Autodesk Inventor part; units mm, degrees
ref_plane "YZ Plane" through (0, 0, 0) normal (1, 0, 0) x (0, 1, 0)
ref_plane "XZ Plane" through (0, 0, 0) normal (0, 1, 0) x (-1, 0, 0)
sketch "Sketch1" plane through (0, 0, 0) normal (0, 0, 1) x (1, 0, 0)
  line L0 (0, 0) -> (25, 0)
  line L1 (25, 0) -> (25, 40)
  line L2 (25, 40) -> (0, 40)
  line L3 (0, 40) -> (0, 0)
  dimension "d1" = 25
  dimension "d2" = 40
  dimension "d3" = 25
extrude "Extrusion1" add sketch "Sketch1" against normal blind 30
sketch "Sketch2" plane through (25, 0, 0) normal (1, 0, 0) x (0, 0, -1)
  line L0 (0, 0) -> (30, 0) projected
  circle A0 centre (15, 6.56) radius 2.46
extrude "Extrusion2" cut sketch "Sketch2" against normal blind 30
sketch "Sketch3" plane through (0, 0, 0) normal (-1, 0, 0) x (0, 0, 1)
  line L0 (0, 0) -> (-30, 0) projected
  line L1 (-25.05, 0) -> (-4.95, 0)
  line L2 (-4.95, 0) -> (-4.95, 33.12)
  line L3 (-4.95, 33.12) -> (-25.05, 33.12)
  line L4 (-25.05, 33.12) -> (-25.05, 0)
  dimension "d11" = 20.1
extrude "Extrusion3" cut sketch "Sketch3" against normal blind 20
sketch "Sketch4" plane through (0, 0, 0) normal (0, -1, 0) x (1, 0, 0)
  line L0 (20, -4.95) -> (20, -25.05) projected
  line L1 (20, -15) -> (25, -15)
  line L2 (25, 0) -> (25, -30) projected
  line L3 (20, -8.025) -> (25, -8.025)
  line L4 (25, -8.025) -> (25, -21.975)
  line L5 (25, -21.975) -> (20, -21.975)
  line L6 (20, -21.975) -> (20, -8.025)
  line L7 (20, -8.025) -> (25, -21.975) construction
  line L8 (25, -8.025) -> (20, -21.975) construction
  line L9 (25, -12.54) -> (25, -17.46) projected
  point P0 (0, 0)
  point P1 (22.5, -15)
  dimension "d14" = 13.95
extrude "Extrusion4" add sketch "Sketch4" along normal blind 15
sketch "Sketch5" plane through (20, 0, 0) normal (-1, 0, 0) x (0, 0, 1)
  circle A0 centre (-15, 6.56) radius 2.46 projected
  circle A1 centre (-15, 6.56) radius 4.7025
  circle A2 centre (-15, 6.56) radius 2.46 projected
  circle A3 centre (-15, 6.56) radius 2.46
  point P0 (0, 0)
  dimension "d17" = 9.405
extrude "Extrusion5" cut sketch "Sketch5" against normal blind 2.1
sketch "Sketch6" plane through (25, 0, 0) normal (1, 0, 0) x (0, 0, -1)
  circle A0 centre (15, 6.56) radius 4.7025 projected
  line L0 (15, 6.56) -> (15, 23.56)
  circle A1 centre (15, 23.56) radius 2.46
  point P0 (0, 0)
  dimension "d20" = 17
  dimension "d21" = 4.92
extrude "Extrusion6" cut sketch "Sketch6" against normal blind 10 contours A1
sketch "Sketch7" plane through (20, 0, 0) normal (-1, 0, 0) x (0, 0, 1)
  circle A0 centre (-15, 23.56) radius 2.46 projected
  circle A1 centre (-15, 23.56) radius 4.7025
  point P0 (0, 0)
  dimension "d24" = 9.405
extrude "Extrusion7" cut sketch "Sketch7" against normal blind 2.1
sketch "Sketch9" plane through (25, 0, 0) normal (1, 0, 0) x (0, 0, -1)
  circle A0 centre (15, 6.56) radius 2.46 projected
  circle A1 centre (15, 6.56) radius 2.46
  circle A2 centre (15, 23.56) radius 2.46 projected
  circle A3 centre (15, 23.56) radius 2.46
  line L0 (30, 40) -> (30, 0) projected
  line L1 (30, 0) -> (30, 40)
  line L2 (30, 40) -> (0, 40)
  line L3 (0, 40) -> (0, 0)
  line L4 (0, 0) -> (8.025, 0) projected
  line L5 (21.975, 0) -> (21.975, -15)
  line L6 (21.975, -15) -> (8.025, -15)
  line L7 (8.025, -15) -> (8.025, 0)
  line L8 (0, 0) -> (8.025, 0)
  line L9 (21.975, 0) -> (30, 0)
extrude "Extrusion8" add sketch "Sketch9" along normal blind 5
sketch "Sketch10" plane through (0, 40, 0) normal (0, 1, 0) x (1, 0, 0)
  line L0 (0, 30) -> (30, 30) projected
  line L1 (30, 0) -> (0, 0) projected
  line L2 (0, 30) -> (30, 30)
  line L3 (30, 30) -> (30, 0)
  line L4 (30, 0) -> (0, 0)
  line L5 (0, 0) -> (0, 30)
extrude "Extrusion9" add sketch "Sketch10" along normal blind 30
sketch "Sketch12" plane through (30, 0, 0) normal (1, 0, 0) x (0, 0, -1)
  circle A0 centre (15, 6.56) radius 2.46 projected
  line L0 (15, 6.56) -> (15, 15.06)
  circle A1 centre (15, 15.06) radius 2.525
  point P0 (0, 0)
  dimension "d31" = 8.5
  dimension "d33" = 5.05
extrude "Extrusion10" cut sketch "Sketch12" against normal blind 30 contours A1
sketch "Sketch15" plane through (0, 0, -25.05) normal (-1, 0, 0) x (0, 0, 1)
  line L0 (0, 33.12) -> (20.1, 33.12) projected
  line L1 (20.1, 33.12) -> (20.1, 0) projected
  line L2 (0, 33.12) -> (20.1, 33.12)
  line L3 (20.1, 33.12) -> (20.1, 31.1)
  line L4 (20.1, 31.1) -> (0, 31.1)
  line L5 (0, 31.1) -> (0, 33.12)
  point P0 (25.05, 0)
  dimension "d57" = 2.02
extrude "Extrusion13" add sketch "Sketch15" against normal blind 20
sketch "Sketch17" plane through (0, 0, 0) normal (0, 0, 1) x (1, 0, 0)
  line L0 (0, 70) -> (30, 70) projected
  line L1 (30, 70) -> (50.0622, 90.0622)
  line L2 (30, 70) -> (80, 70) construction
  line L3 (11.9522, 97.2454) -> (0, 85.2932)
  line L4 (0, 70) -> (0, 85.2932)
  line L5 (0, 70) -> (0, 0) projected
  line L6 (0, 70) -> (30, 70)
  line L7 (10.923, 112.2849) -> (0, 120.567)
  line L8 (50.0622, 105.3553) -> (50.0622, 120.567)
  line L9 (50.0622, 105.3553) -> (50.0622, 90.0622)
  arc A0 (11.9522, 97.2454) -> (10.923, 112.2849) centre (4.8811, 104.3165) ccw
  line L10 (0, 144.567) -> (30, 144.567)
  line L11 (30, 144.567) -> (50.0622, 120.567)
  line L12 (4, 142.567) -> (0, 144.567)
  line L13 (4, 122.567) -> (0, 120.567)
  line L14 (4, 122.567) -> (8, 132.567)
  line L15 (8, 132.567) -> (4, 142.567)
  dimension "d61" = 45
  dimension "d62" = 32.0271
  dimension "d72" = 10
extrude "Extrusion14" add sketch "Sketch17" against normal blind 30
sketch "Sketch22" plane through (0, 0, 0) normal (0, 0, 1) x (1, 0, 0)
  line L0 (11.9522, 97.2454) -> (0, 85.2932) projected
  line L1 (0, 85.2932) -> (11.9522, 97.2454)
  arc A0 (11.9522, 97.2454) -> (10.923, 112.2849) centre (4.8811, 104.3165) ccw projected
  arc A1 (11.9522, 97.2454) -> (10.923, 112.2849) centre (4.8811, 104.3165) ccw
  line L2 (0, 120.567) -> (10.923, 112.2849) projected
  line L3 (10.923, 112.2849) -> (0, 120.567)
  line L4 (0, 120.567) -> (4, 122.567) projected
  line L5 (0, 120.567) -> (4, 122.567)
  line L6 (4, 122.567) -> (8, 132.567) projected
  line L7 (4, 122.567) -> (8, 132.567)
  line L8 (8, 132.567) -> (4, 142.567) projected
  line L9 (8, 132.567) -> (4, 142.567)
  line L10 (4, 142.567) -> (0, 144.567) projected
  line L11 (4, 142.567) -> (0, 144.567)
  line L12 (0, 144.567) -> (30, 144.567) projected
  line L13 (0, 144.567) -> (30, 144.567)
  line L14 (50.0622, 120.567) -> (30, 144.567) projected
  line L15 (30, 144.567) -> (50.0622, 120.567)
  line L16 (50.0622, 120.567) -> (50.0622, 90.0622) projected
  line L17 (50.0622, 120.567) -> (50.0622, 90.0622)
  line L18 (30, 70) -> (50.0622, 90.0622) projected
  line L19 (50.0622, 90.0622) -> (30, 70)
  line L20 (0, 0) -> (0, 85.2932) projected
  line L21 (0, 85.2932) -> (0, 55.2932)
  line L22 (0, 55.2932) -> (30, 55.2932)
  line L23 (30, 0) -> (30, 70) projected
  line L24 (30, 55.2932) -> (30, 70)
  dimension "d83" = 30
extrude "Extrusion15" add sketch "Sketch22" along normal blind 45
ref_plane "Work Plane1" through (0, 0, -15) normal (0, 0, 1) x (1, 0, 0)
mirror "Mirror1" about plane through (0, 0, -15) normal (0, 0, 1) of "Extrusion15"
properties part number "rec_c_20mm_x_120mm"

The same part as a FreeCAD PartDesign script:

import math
import FreeCAD as App
import Part
import Sketcher

V = App.Vector
Q = App.Units.Quantity


def add_polygon(sketch, points):
    """Adds a closed chain of lines whose ends are joined by coincident constraints."""
    first, n = sketch.GeometryCount, len(points)
    for a, b in zip(points, points[1:] + points[:1]):
        sketch.addGeometry(Part.LineSegment(App.Vector(*a, 0), App.Vector(*b, 0)), False)
    for i in range(n):
        sketch.addConstraint(Sketcher.Constraint("Coincident", first + i, 2, first + (i + 1) % n, 1))

doc = App.newDocument("Part")
body = doc.addObject("PartDesign::Body", "Body")

# Sketch on XY plane
sketch1 = doc.addObject("Sketcher::SketchObject", "Sketch")
body.addObject(sketch1)
sketch1.AttachmentSupport = (doc.XY_Plane, [""])
sketch1.MapMode = "FlatFace"
add_polygon(sketch1, [(0, 40), (0, 0), (25, 0), (25, 40)])  # lines 0-3
sketch1.addConstraint([
    Sketcher.Constraint("Vertical", 0),
    Sketcher.Constraint("Horizontal", 1),
    Sketcher.Constraint("Vertical", 2),
    Sketcher.Constraint("Horizontal", 3),
    Sketcher.Constraint("Coincident", 0, 2, -1, 1),
    Sketcher.Constraint("DistanceX", 1, 1, 1, 2, Q("25 mm")),
    Sketcher.Constraint("DistanceY", 0, 2, 0, 1, Q("40 mm")),
])
pad1 = doc.addObject("PartDesign::Pad", "Pad")
body.addObject(pad1)
pad1.Profile = sketch1
pad1.Length = 30
pad1.Reversed = True

# Sketch on YZ plane
sketch2 = doc.addObject("Sketcher::SketchObject", "Sketch001")
body.addObject(sketch2)
sketch2.AttachmentSupport = (doc.YZ_Plane, [""])
sketch2.MapMode = "FlatFace"
sketch2.AttachmentOffset = App.Placement(V(0, 0, 25), App.Rotation())
sketch2.addGeometry(Part.Circle(V(6.56, -15, 0), V(0, 0, 1), 2.46), False)
sketch2.addConstraint([
    Sketcher.Constraint("Diameter", 0, Q("4.92 mm")),
    Sketcher.Constraint("DistanceY", 0, 3, -1, 1, Q("15 mm")),
    Sketcher.Constraint("DistanceX", -1, 1, 0, 3, Q("6.56 mm")),
])
pocket1 = doc.addObject("PartDesign::Pocket", "Pocket")
body.addObject(pocket1)
pocket1.Profile = sketch2
pocket1.Length = 30

# Sketch on YZ plane
sketch3 = doc.addObject("Sketcher::SketchObject", "Sketch002")
body.addObject(sketch3)
sketch3.AttachmentSupport = (doc.YZ_Plane, [""])
sketch3.MapMode = "FlatFace"
add_polygon(sketch3, [(0, -25.05), (0, -4.95), (33.12, -4.95), (33.12, -25.05)])  # lines 0-3
sketch3.addConstraint([
    Sketcher.Constraint("Vertical", 0),
    Sketcher.Constraint("Horizontal", 1),
    Sketcher.Constraint("Vertical", 2),
    Sketcher.Constraint("Horizontal", 3),
    Sketcher.Constraint("PointOnObject", 0, 2, -2),
    Sketcher.Constraint("DistanceY", 0, 1, 0, 2, Q("20.1 mm")),
    Sketcher.Constraint("DistanceX", 1, 1, 1, 2, Q("33.12 mm")),
    Sketcher.Constraint("DistanceY", 0, 2, -1, 1, Q("4.95 mm")),
])
pocket2 = doc.addObject("PartDesign::Pocket", "Pocket001")
body.addObject(pocket2)
pocket2.Profile = sketch3
pocket2.Length = 20
pocket2.Reversed = True

# Sketch on XZ plane
sketch4 = doc.addObject("Sketcher::SketchObject", "Sketch003")
body.addObject(sketch4)
sketch4.AttachmentSupport = (doc.XZ_Plane, [""])
sketch4.MapMode = "FlatFace"
add_polygon(sketch4, [(25, -8.025), (20, -8.025), (20, -21.975), (25, -21.975)])  # lines 0-3
sketch4.addConstraint([
    Sketcher.Constraint("Horizontal", 0),
    Sketcher.Constraint("Vertical", 1),
    Sketcher.Constraint("Horizontal", 2),
    Sketcher.Constraint("Vertical", 3),
    Sketcher.Constraint("DistanceY", 1, 2, 1, 1, Q("13.95 mm")),
    Sketcher.Constraint("DistanceX", 0, 2, 0, 1, Q("5 mm")),
    Sketcher.Constraint("DistanceX", -1, 1, 0, 2, Q("20 mm")),
    Sketcher.Constraint("DistanceY", 0, 2, -1, 1, Q("8.025 mm")),
])
pad2 = doc.addObject("PartDesign::Pad", "Pad001")
body.addObject(pad2)
pad2.Profile = sketch4
pad2.Length = 15

# Sketch on YZ plane
sketch5 = doc.addObject("Sketcher::SketchObject", "Sketch004")
body.addObject(sketch5)
sketch5.AttachmentSupport = (doc.YZ_Plane, [""])
sketch5.MapMode = "FlatFace"
sketch5.AttachmentOffset = App.Placement(V(0, 0, 20), App.Rotation())
sketch5.addGeometry([
    Part.Circle(V(6.56, -15, 0), V(0, 0, 1), 4.7025),
    Part.Circle(V(6.56, -15, 0), V(0, 0, 1), 2.46),
], False)
sketch5.addConstraint([
    Sketcher.Constraint("Coincident", 1, 3, 0, 3),
    Sketcher.Constraint("Diameter", 0, Q("9.405 mm")),
    Sketcher.Constraint("Diameter", 1, Q("4.92 mm")),
    Sketcher.Constraint("DistanceY", 0, 3, -1, 1, Q("15 mm")),
    Sketcher.Constraint("DistanceX", -1, 1, 0, 3, Q("6.56 mm")),
])
pocket3 = doc.addObject("PartDesign::Pocket", "Pocket002")
body.addObject(pocket3)
pocket3.Profile = sketch5
pocket3.Length = 2.1
pocket3.Reversed = True

# Sketch on YZ plane
sketch6 = doc.addObject("Sketcher::SketchObject", "Sketch005")
body.addObject(sketch6)
sketch6.AttachmentSupport = (doc.YZ_Plane, [""])
sketch6.MapMode = "FlatFace"
sketch6.AttachmentOffset = App.Placement(V(0, 0, 25), App.Rotation())
sketch6.addGeometry(Part.Circle(V(23.56, -15, 0), V(0, 0, 1), 2.46), False)
sketch6.addConstraint([
    Sketcher.Constraint("Diameter", 0, Q("4.92 mm")),
    Sketcher.Constraint("DistanceY", 0, 3, -1, 1, Q("15 mm")),
    Sketcher.Constraint("DistanceX", -1, 1, 0, 3, Q("23.56 mm")),
])
pocket4 = doc.addObject("PartDesign::Pocket", "Pocket003")
body.addObject(pocket4)
pocket4.Profile = sketch6
pocket4.Length = 10

# Sketch on YZ plane
sketch7 = doc.addObject("Sketcher::SketchObject", "Sketch006")
body.addObject(sketch7)
sketch7.AttachmentSupport = (doc.YZ_Plane, [""])
sketch7.MapMode = "FlatFace"
sketch7.AttachmentOffset = App.Placement(V(0, 0, 20), App.Rotation())
sketch7.addGeometry([
    Part.Circle(V(23.56, -15, 0), V(0, 0, 1), 4.7025),
    Part.Circle(V(23.56, -15, 0), V(0, 0, 1), 2.46),
], False)
sketch7.addConstraint([
    Sketcher.Constraint("Coincident", 1, 3, 0, 3),
    Sketcher.Constraint("Diameter", 0, Q("9.405 mm")),
    Sketcher.Constraint("Diameter", 1, Q("4.92 mm")),
    Sketcher.Constraint("DistanceY", 0, 3, -1, 1, Q("15 mm")),
    Sketcher.Constraint("DistanceX", -1, 1, 0, 3, Q("23.56 mm")),
])
pocket5 = doc.addObject("PartDesign::Pocket", "Pocket004")
body.addObject(pocket5)
pocket5.Profile = sketch7
pocket5.Length = 2.1
pocket5.Reversed = True

# Sketch on YZ plane
sketch8 = doc.addObject("Sketcher::SketchObject", "Sketch007")
body.addObject(sketch8)
sketch8.AttachmentSupport = (doc.YZ_Plane, [""])
sketch8.MapMode = "FlatFace"
sketch8.AttachmentOffset = App.Placement(V(0, 0, 25), App.Rotation())
add_polygon(sketch8, [(0, -30), (40, -30), (40, 0), (0, 0), (0, -8.025), (-15, -8.025), (-15, -21.975), (0, -21.975)])  # lines 0-7
sketch8.addGeometry(Part.Circle(V(6.56, -15, 0), V(0, 0, 1), 2.46), False)  # 8
sketch8.addGeometry(Part.Circle(V(23.56, -15, 0), V(0, 0, 1), 2.46), False)  # 9
sketch8.addConstraint([
    Sketcher.Constraint("Horizontal", 0),
    Sketcher.Constraint("Vertical", 1),
    Sketcher.Constraint("Horizontal", 2),
    Sketcher.Constraint("Vertical", 3),
    Sketcher.Constraint("Horizontal", 4),
    Sketcher.Constraint("Vertical", 5),
    Sketcher.Constraint("Horizontal", 6),
    Sketcher.Constraint("Vertical", 7),
    Sketcher.Constraint("Coincident", 2, 2, -1, 1),
    Sketcher.Constraint("Equal", 8, 9),
    Sketcher.Constraint("PointOnObject", 6, 2, -2),
    Sketcher.Constraint("Horizontal", 8, 3, 9, 3),
    Sketcher.Constraint("Equal", 3, 7),
    Sketcher.Constraint("Diameter", 8, Q("4.92 mm")),
    Sketcher.Constraint("DistanceX", 0, 1, 0, 2, Q("40 mm")),
    Sketcher.Constraint("DistanceX", 4, 2, 4, 1, Q("15 mm")),
    Sketcher.Constraint("DistanceY", 1, 1, 1, 2, Q("30 mm")),
    Sketcher.Constraint("DistanceY", 8, 3, -1, 1, Q("15 mm")),
    Sketcher.Constraint("DistanceX", 8, 3, 9, 3, Q("17 mm")),
    Sketcher.Constraint("DistanceY", 5, 2, 5, 1, Q("13.95 mm")),
    Sketcher.Constraint("DistanceX", -1, 1, 8, 3, Q("6.56 mm")),
])
pad3 = doc.addObject("PartDesign::Pad", "Pad002")
body.addObject(pad3)
pad3.Profile = sketch8
pad3.Length = 5

# Sketch on XZ plane
sketch9 = doc.addObject("Sketcher::SketchObject", "Sketch008")
body.addObject(sketch9)
sketch9.AttachmentSupport = (doc.XZ_Plane, [""])
sketch9.MapMode = "FlatFace"
sketch9.AttachmentOffset = App.Placement(V(0, 0, -40), App.Rotation())
add_polygon(sketch9, [(30, -30), (0, -30), (0, 0), (30, 0)])  # lines 0-3
sketch9.addConstraint([
    Sketcher.Constraint("Horizontal", 0),
    Sketcher.Constraint("Vertical", 1),
    Sketcher.Constraint("Horizontal", 2),
    Sketcher.Constraint("Vertical", 3),
    Sketcher.Constraint("Coincident", 1, 2, -1, 1),
    Sketcher.Constraint("Equal", 2, 1),
    Sketcher.Constraint("DistanceX", 0, 2, 0, 1, Q("30 mm")),
])
pad4 = doc.addObject("PartDesign::Pad", "Pad003")
body.addObject(pad4)
pad4.Profile = sketch9
pad4.Length = 30
pad4.Reversed = True

# Sketch on YZ plane
sketch10 = doc.addObject("Sketcher::SketchObject", "Sketch009")
body.addObject(sketch10)
sketch10.AttachmentSupport = (doc.YZ_Plane, [""])
sketch10.MapMode = "FlatFace"
sketch10.AttachmentOffset = App.Placement(V(0, 0, 30), App.Rotation())
sketch10.addGeometry(Part.Circle(V(15.06, -15, 0), V(0, 0, 1), 2.525), False)
sketch10.addConstraint([
    Sketcher.Constraint("Diameter", 0, Q("5.05 mm")),
    Sketcher.Constraint("DistanceY", 0, 3, -1, 1, Q("15 mm")),
    Sketcher.Constraint("DistanceX", -1, 1, 0, 3, Q("15.06 mm")),
])
pocket6 = doc.addObject("PartDesign::Pocket", "Pocket005")
body.addObject(pocket6)
pocket6.Profile = sketch10
pocket6.Length = 30

# Sketch on YZ plane
sketch11 = doc.addObject("Sketcher::SketchObject", "Sketch010")
body.addObject(sketch11)
sketch11.AttachmentSupport = (doc.YZ_Plane, [""])
sketch11.MapMode = "FlatFace"
add_polygon(sketch11, [(33.12, -4.95), (33.12, -25.05), (31.1, -25.05), (31.1, -4.95)])  # lines 0-3
sketch11.addConstraint([
    Sketcher.Constraint("Vertical", 0),
    Sketcher.Constraint("Horizontal", 1),
    Sketcher.Constraint("Vertical", 2),
    Sketcher.Constraint("Horizontal", 3),
    Sketcher.Constraint("DistanceX", 1, 2, 1, 1, Q("2.02 mm")),
    Sketcher.Constraint("DistanceY", 0, 2, 0, 1, Q("20.1 mm")),
    Sketcher.Constraint("DistanceX", -1, 1, 1, 2, Q("31.1 mm")),
    Sketcher.Constraint("DistanceY", 0, 2, -1, 1, Q("25.05 mm")),
])
pad5 = doc.addObject("PartDesign::Pad", "Pad004")
body.addObject(pad5)
pad5.Profile = sketch11
pad5.Length = 20

# Sketch on XY plane
sketch12 = doc.addObject("Sketcher::SketchObject", "Sketch011")
body.addObject(sketch12)
sketch12.AttachmentSupport = (doc.XY_Plane, [""])
sketch12.MapMode = "FlatFace"
sketch12.addGeometry([
    Part.LineSegment(V(0, 85.2932, 0), V(0, 70, 0)),  # 0
    Part.LineSegment(V(0, 70, 0), V(30, 70, 0)),  # 1
    Part.LineSegment(V(30, 70, 0), V(50.0622, 90.0622, 0)),  # 2
    Part.LineSegment(V(50.0622, 90.0622, 0), V(50.0622, 120.567, 0)),  # 3
    Part.LineSegment(V(50.0622, 120.567, 0), V(30, 144.567, 0)),  # 4
    Part.LineSegment(V(30, 144.567, 0), V(0, 144.567, 0)),  # 5
    Part.LineSegment(V(0, 144.567, 0), V(4, 142.567, 0)),  # 6
    Part.LineSegment(V(4, 142.567, 0), V(8, 132.567, 0)),  # 7
    Part.LineSegment(V(8, 132.567, 0), V(4, 122.567, 0)),  # 8
    Part.LineSegment(V(4, 122.567, 0), V(0, 120.567, 0)),  # 9
    Part.LineSegment(V(0, 120.567, 0), V(10.923, 112.2849, 0)),  # 10
    Part.ArcOfCircle(Part.Circle(V(4.8811, 104.3165, 0), V(0, 0, 1), 10.000046), math.radians(-45), math.radians(52.829413)),  # 11
    Part.LineSegment(V(11.9522, 97.2454, 0), V(0, 85.2932, 0)),  # 12
], False)
sketch12.addConstraint([
    Sketcher.Constraint("Coincident", 0, 2, 1, 1),
    Sketcher.Constraint("Coincident", 1, 2, 2, 1),
    Sketcher.Constraint("Coincident", 2, 2, 3, 1),
    Sketcher.Constraint("Coincident", 3, 2, 4, 1),
    Sketcher.Constraint("Coincident", 4, 2, 5, 1),
    Sketcher.Constraint("Coincident", 5, 2, 6, 1),
    Sketcher.Constraint("Coincident", 6, 2, 7, 1),
    Sketcher.Constraint("Coincident", 7, 2, 8, 1),
    Sketcher.Constraint("Coincident", 8, 2, 9, 1),
    Sketcher.Constraint("Coincident", 9, 2, 10, 1),
    Sketcher.Constraint("Tangent", 10, 2, 11, 2),
    Sketcher.Constraint("Tangent", 11, 1, 12, 1),
    Sketcher.Constraint("Coincident", 12, 2, 0, 1),
    Sketcher.Constraint("Vertical", 0),
    Sketcher.Constraint("Horizontal", 1),
    Sketcher.Constraint("Vertical", 3),
    Sketcher.Constraint("Horizontal", 5),
    Sketcher.Constraint("PointOnObject", 0, 2, -2),
    Sketcher.Constraint("PointOnObject", 5, 2, -2),
    Sketcher.Constraint("PointOnObject", 9, 2, -2),
    Sketcher.Constraint("Parallel", 2, 12),
    Sketcher.Constraint("Horizontal", 3, 2, 9, 2),
    Sketcher.Constraint("Vertical", 1, 2, 4, 2),
    Sketcher.Constraint("Vertical", 6, 2, 8, 2),
    Sketcher.Constraint("Equal", 7, 8),
    Sketcher.Constraint("Equal", 6, 9),
    Sketcher.Constraint("Radius", 11, Q("10 mm")),
    Sketcher.Constraint("Angle", 2, Q("45 deg")),
    Sketcher.Constraint("DistanceY", 7, 2, 6, 2, Q("10 mm")),
    Sketcher.Constraint("DistanceX", 1, 1, 1, 2, Q("30 mm")),
    Sketcher.Constraint("DistanceY", -1, 1, 0, 2, Q("70 mm")),
    Sketcher.Constraint("DistanceX", -1, 1, 6, 2, Q("4 mm")),
    Sketcher.Constraint("DistanceX", -1, 1, 7, 2, Q("8 mm")),
    Sketcher.Constraint("DistanceY", 3, 2, 4, 2, Q("24 mm")),
    Sketcher.Constraint("Angle", 10, Q("-37.1703 deg")),
    Sketcher.Constraint("Distance", 12, Q("16.903 mm")),
    Sketcher.Constraint("DistanceY", 0, 2, 0, 1, Q("15.2932 mm")),
    Sketcher.Constraint("DistanceY", 3, 1, 3, 2, Q("30.5048 mm")),
])
pad6 = doc.addObject("PartDesign::Pad", "Pad005")
body.addObject(pad6)
pad6.Profile = sketch12
pad6.Length = 30
pad6.Reversed = True

# Sketch on XY plane
sketch13 = doc.addObject("Sketcher::SketchObject", "Sketch012")
body.addObject(sketch13)
sketch13.AttachmentSupport = (doc.XY_Plane, [""])
sketch13.MapMode = "FlatFace"
sketch13.addGeometry([
    Part.ArcOfCircle(Part.Circle(V(4.8811, 104.3165, 0), V(0, 0, 1), 10.000046), math.radians(-45), math.radians(52.829413)),  # 0
    Part.LineSegment(V(11.9522, 97.2454, 0), V(0, 85.2932, 0)),  # 1
    Part.LineSegment(V(0, 85.2932, 0), V(0, 55.2932, 0)),  # 2
    Part.LineSegment(V(0, 55.2932, 0), V(30, 55.2932, 0)),  # 3
    Part.LineSegment(V(30, 55.2932, 0), V(30, 70, 0)),  # 4
    Part.LineSegment(V(30, 70, 0), V(50.0622, 90.0622, 0)),  # 5
    Part.LineSegment(V(50.0622, 90.0622, 0), V(50.0622, 120.567, 0)),  # 6
    Part.LineSegment(V(50.0622, 120.567, 0), V(30, 144.567, 0)),  # 7
    Part.LineSegment(V(30, 144.567, 0), V(0, 144.567, 0)),  # 8
    Part.LineSegment(V(0, 144.567, 0), V(4, 142.567, 0)),  # 9
    Part.LineSegment(V(4, 142.567, 0), V(8, 132.567, 0)),  # 10
    Part.LineSegment(V(8, 132.567, 0), V(4, 122.567, 0)),  # 11
    Part.LineSegment(V(4, 122.567, 0), V(0, 120.567, 0)),  # 12
    Part.LineSegment(V(0, 120.567, 0), V(10.923, 112.2849, 0)),  # 13
], False)
sketch13.addConstraint([
    Sketcher.Constraint("Tangent", 0, 1, 1, 1),
    Sketcher.Constraint("Coincident", 1, 2, 2, 1),
    Sketcher.Constraint("Coincident", 2, 2, 3, 1),
    Sketcher.Constraint("Coincident", 3, 2, 4, 1),
    Sketcher.Constraint("Coincident", 4, 2, 5, 1),
    Sketcher.Constraint("Coincident", 5, 2, 6, 1),
    Sketcher.Constraint("Coincident", 6, 2, 7, 1),
    Sketcher.Constraint("Coincident", 7, 2, 8, 1),
    Sketcher.Constraint("Coincident", 8, 2, 9, 1),
    Sketcher.Constraint("Coincident", 9, 2, 10, 1),
    Sketcher.Constraint("Coincident", 10, 2, 11, 1),
    Sketcher.Constraint("Coincident", 11, 2, 12, 1),
    Sketcher.Constraint("Coincident", 12, 2, 13, 1),
    Sketcher.Constraint("Tangent", 13, 2, 0, 2),
    Sketcher.Constraint("Vertical", 2),
    Sketcher.Constraint("Horizontal", 3),
    Sketcher.Constraint("Vertical", 4),
    Sketcher.Constraint("Vertical", 6),
    Sketcher.Constraint("Horizontal", 8),
    Sketcher.Constraint("PointOnObject", 1, 2, -2),
    Sketcher.Constraint("PointOnObject", 8, 2, -2),
    Sketcher.Constraint("PointOnObject", 12, 2, -2),
    Sketcher.Constraint("Parallel", 1, 5),
    Sketcher.Constraint("Horizontal", 6, 2, 12, 2),
    Sketcher.Constraint("Vertical", 4, 2, 7, 2),
    Sketcher.Constraint("Vertical", 9, 2, 11, 2),
    Sketcher.Constraint("Equal", 8, 2),
    Sketcher.Constraint("Equal", 10, 11),
    Sketcher.Constraint("Equal", 9, 12),
    Sketcher.Constraint("DistanceX", 3, 1, 3, 2, Q("30 mm")),
    Sketcher.Constraint("Radius", 0, Q("10 mm")),
    Sketcher.Constraint("Angle", 1, Q("-135 deg")),
    Sketcher.Constraint("DistanceY", -1, 1, 4, 2, Q("70 mm")),
    Sketcher.Constraint("DistanceX", -1, 1, 9, 2, Q("4 mm")),
    Sketcher.Constraint("DistanceX", -1, 1, 10, 2, Q("8 mm")),
    Sketcher.Constraint("DistanceY", 6, 2, 7, 2, Q("24 mm")),
    Sketcher.Constraint("DistanceY", 9, 2, 8, 2, Q("2 mm")),
    Sketcher.Constraint("Angle", 13, Q("-37.1703 deg")),
    Sketcher.Constraint("DistanceX", 0, 1, 5, 2, Q("38.11 mm")),
    Sketcher.Constraint("Distance", 1, Q("16.903 mm")),
    Sketcher.Constraint("DistanceY", 4, 1, 4, 2, Q("14.7068 mm")),
])
pad7 = doc.addObject("PartDesign::Pad", "Pad006")
body.addObject(pad7)
pad7.Profile = sketch13
pad7.Length = 45
doc.recompute()

datumplane = doc.addObject("PartDesign::Plane", "DatumPlane")
body.addObject(datumplane)
datumplane.AttachmentSupport = (doc.XY_Plane, [""])
datumplane.MapMode = "FlatFace"
datumplane.AttachmentOffset = App.Placement(V(0, 0, -15), App.Rotation())
mirrored = doc.addObject("PartDesign::Mirrored", "Mirrored")
body.addObject(mirrored)
mirrored.Originals = [pad7]
mirrored.MirrorPlane = (datumplane, [""])
body.Tip = mirrored

doc.recompute()
